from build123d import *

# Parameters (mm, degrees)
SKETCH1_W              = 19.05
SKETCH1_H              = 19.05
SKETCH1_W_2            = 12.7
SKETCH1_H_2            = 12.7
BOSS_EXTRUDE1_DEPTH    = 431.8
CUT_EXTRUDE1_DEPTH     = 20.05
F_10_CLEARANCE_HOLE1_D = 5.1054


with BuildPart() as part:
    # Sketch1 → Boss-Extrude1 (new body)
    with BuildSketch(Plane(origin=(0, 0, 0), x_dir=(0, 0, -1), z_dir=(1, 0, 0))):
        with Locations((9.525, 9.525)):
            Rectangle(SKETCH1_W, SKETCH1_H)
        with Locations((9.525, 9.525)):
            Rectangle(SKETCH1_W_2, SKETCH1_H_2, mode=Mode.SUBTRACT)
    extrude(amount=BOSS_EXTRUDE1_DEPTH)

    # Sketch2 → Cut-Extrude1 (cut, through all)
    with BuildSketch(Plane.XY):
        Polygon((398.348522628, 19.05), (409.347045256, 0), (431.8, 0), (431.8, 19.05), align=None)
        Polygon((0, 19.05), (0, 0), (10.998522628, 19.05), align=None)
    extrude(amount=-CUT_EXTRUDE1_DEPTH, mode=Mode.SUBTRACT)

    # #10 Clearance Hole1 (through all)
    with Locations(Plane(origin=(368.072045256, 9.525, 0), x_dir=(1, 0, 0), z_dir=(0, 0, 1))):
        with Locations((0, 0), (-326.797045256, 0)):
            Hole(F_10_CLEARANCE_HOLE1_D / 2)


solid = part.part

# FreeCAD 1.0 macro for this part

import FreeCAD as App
import Part
import Sketcher

V = App.Vector
Q = App.Units.Quantity

doc = App.newDocument("Part")
body = doc.addObject("PartDesign::Body", "Body")

sketch1 = body.newObject("Sketcher::SketchObject", "Sketch")
sketch1.AttachmentSupport = (doc.getObject("YZ_Plane"), [""])
sketch1.MapMode = "FlatFace"
sketch1.addGeometry([
    Part.LineSegment(V(19.05, 0, 0), V(0, 0, 0)),
    Part.LineSegment(V(0, 0, 0), V(0, -19.05, 0)),
    Part.LineSegment(V(0, -19.05, 0), V(19.05, -19.05, 0)),
    Part.LineSegment(V(19.05, -19.05, 0), V(19.05, 0, 0)),
    Part.LineSegment(V(3.175, -15.875, 0), V(3.175, -3.175, 0)),
    Part.LineSegment(V(3.175, -3.175, 0), V(15.875, -3.175, 0)),
    Part.LineSegment(V(15.875, -3.175, 0), V(15.875, -15.875, 0)),
    Part.LineSegment(V(15.875, -15.875, 0), V(3.175, -15.875, 0)),
], False)
sketch1.addConstraint([
    Sketcher.Constraint("Coincident", 0, 2, 1, 1),
    Sketcher.Constraint("Coincident", 1, 2, 2, 1),
    Sketcher.Constraint("Coincident", 2, 2, 3, 1),
    Sketcher.Constraint("Coincident", 3, 2, 0, 1),
    Sketcher.Constraint("Coincident", 4, 2, 5, 1),
    Sketcher.Constraint("Coincident", 5, 2, 6, 1),
    Sketcher.Constraint("Coincident", 6, 2, 7, 1),
    Sketcher.Constraint("Coincident", 7, 2, 4, 1),
    Sketcher.Constraint("Horizontal", 0),
    Sketcher.Constraint("Vertical", 1),
    Sketcher.Constraint("Horizontal", 2),
    Sketcher.Constraint("Vertical", 3),
    Sketcher.Constraint("Vertical", 4),
    Sketcher.Constraint("Horizontal", 5),
    Sketcher.Constraint("Vertical", 6),
    Sketcher.Constraint("Horizontal", 7),
    Sketcher.Constraint("Coincident", 0, 2, -1, 1),
    Sketcher.Constraint("Equal", 2, 1),
    Sketcher.Constraint("Equal", 7, 4),
    Sketcher.Constraint("DistanceX", 5, 1, 5, 2, Q("0.5 in")),
    Sketcher.Constraint("DistanceX", 0, 2, 0, 1, Q("0.75 in")),
    Sketcher.Constraint("DistanceX", -1, 1, 4, 2, Q("0.125 in")),
    Sketcher.Constraint("DistanceY", 4, 2, -1, 1, Q("0.125 in")),
])
pad1 = body.newObject("PartDesign::Pad", "Pad")
pad1.Profile = sketch1
pad1.Length = Q("17 in")

sketch2 = body.newObject("Sketcher::SketchObject", "Sketch001")
sketch2.AttachmentSupport = (doc.getObject("XY_Plane"), [""])
sketch2.MapMode = "FlatFace"
sketch2.addGeometry([
    Part.LineSegment(V(398.348523, 19.05, 0), V(409.347045, 0, 0)),
    Part.LineSegment(V(409.347045, 0, 0), V(431.8, 0, 0)),
    Part.LineSegment(V(431.8, 0, 0), V(431.8, 19.05, 0)),
    Part.LineSegment(V(431.8, 19.05, 0), V(398.348523, 19.05, 0)),
    Part.LineSegment(V(0, 19.05, 0), V(0, 0, 0)),
    Part.LineSegment(V(0, 0, 0), V(10.998523, 19.05, 0)),
    Part.LineSegment(V(10.998523, 19.05, 0), V(0, 19.05, 0)),
], False)
sketch2.addConstraint([
    Sketcher.Constraint("Coincident", 0, 2, 1, 1),
    Sketcher.Constraint("Coincident", 1, 2, 2, 1),
    Sketcher.Constraint("Coincident", 2, 2, 3, 1),
    Sketcher.Constraint("Coincident", 3, 2, 0, 1),
    Sketcher.Constraint("Coincident", 4, 2, 5, 1),
    Sketcher.Constraint("Coincident", 5, 2, 6, 1),
    Sketcher.Constraint("Coincident", 6, 2, 4, 1),
    Sketcher.Constraint("Horizontal", 1),
    Sketcher.Constraint("Vertical", 2),
    Sketcher.Constraint("Horizontal", 3),
    Sketcher.Constraint("Vertical", 4),
    Sketcher.Constraint("Horizontal", 6),
    Sketcher.Constraint("Coincident", 4, 2, -1, 1),
    Sketcher.Constraint("PointOnObject", 0, 2, -1),
    Sketcher.Constraint("Horizontal", 3, 2, 5, 2),
    Sketcher.Constraint("Equal", 0, 5),
    Sketcher.Constraint("DistanceX", -1, 1, 1, 2, Q("17 in")),
    Sketcher.Constraint("Angle", 0, Q("-60 deg")),
    Sketcher.Constraint("DistanceY", 2, 1, 2, 2, Q("0.75 in")),
    Sketcher.Constraint("DistanceX", 5, 2, 3, 2, Q("15.25 in")),
])
pocket1 = body.newObject("PartDesign::Pocket", "Pocket")
pocket1.Profile = sketch2
pocket1.Type = "ThroughAll"

sketch3 = body.newObject("Sketcher::SketchObject", "Sketch002")
sketch3.AttachmentSupport = (doc.getObject("XY_Plane"), [""])
sketch3.MapMode = "FlatFace"
sketch3.addGeometry([
    Part.Circle(V(368.072045, 9.525, 0), V(0, 0, 1), 2.5527),
    Part.Circle(V(41.275, 9.525, 0), V(0, 0, 1), 2.5527),
], False)
sketch3.addConstraint([
    Sketcher.Constraint("Equal", 0, 1),
    Sketcher.Constraint("Horizontal", 0, 3, 1, 3),
    Sketcher.Constraint("Diameter", 0, Q("0.201 in")),
    Sketcher.Constraint("DistanceY", -1, 1, 0, 3, Q("0.375 in")),
    Sketcher.Constraint("DistanceX", -1, 1, 1, 3, Q("1.625 in")),
    Sketcher.Constraint("DistanceX", -1, 1, 0, 3, 368.072045),
])
doc.recompute()
hole = body.newObject("PartDesign::Hole", "Hole")
hole.Profile = sketch3
hole.ThreadType = "None"
hole.Diameter = Q("0.201 in")
hole.DepthType = "ThroughAll"

doc.recompute()
